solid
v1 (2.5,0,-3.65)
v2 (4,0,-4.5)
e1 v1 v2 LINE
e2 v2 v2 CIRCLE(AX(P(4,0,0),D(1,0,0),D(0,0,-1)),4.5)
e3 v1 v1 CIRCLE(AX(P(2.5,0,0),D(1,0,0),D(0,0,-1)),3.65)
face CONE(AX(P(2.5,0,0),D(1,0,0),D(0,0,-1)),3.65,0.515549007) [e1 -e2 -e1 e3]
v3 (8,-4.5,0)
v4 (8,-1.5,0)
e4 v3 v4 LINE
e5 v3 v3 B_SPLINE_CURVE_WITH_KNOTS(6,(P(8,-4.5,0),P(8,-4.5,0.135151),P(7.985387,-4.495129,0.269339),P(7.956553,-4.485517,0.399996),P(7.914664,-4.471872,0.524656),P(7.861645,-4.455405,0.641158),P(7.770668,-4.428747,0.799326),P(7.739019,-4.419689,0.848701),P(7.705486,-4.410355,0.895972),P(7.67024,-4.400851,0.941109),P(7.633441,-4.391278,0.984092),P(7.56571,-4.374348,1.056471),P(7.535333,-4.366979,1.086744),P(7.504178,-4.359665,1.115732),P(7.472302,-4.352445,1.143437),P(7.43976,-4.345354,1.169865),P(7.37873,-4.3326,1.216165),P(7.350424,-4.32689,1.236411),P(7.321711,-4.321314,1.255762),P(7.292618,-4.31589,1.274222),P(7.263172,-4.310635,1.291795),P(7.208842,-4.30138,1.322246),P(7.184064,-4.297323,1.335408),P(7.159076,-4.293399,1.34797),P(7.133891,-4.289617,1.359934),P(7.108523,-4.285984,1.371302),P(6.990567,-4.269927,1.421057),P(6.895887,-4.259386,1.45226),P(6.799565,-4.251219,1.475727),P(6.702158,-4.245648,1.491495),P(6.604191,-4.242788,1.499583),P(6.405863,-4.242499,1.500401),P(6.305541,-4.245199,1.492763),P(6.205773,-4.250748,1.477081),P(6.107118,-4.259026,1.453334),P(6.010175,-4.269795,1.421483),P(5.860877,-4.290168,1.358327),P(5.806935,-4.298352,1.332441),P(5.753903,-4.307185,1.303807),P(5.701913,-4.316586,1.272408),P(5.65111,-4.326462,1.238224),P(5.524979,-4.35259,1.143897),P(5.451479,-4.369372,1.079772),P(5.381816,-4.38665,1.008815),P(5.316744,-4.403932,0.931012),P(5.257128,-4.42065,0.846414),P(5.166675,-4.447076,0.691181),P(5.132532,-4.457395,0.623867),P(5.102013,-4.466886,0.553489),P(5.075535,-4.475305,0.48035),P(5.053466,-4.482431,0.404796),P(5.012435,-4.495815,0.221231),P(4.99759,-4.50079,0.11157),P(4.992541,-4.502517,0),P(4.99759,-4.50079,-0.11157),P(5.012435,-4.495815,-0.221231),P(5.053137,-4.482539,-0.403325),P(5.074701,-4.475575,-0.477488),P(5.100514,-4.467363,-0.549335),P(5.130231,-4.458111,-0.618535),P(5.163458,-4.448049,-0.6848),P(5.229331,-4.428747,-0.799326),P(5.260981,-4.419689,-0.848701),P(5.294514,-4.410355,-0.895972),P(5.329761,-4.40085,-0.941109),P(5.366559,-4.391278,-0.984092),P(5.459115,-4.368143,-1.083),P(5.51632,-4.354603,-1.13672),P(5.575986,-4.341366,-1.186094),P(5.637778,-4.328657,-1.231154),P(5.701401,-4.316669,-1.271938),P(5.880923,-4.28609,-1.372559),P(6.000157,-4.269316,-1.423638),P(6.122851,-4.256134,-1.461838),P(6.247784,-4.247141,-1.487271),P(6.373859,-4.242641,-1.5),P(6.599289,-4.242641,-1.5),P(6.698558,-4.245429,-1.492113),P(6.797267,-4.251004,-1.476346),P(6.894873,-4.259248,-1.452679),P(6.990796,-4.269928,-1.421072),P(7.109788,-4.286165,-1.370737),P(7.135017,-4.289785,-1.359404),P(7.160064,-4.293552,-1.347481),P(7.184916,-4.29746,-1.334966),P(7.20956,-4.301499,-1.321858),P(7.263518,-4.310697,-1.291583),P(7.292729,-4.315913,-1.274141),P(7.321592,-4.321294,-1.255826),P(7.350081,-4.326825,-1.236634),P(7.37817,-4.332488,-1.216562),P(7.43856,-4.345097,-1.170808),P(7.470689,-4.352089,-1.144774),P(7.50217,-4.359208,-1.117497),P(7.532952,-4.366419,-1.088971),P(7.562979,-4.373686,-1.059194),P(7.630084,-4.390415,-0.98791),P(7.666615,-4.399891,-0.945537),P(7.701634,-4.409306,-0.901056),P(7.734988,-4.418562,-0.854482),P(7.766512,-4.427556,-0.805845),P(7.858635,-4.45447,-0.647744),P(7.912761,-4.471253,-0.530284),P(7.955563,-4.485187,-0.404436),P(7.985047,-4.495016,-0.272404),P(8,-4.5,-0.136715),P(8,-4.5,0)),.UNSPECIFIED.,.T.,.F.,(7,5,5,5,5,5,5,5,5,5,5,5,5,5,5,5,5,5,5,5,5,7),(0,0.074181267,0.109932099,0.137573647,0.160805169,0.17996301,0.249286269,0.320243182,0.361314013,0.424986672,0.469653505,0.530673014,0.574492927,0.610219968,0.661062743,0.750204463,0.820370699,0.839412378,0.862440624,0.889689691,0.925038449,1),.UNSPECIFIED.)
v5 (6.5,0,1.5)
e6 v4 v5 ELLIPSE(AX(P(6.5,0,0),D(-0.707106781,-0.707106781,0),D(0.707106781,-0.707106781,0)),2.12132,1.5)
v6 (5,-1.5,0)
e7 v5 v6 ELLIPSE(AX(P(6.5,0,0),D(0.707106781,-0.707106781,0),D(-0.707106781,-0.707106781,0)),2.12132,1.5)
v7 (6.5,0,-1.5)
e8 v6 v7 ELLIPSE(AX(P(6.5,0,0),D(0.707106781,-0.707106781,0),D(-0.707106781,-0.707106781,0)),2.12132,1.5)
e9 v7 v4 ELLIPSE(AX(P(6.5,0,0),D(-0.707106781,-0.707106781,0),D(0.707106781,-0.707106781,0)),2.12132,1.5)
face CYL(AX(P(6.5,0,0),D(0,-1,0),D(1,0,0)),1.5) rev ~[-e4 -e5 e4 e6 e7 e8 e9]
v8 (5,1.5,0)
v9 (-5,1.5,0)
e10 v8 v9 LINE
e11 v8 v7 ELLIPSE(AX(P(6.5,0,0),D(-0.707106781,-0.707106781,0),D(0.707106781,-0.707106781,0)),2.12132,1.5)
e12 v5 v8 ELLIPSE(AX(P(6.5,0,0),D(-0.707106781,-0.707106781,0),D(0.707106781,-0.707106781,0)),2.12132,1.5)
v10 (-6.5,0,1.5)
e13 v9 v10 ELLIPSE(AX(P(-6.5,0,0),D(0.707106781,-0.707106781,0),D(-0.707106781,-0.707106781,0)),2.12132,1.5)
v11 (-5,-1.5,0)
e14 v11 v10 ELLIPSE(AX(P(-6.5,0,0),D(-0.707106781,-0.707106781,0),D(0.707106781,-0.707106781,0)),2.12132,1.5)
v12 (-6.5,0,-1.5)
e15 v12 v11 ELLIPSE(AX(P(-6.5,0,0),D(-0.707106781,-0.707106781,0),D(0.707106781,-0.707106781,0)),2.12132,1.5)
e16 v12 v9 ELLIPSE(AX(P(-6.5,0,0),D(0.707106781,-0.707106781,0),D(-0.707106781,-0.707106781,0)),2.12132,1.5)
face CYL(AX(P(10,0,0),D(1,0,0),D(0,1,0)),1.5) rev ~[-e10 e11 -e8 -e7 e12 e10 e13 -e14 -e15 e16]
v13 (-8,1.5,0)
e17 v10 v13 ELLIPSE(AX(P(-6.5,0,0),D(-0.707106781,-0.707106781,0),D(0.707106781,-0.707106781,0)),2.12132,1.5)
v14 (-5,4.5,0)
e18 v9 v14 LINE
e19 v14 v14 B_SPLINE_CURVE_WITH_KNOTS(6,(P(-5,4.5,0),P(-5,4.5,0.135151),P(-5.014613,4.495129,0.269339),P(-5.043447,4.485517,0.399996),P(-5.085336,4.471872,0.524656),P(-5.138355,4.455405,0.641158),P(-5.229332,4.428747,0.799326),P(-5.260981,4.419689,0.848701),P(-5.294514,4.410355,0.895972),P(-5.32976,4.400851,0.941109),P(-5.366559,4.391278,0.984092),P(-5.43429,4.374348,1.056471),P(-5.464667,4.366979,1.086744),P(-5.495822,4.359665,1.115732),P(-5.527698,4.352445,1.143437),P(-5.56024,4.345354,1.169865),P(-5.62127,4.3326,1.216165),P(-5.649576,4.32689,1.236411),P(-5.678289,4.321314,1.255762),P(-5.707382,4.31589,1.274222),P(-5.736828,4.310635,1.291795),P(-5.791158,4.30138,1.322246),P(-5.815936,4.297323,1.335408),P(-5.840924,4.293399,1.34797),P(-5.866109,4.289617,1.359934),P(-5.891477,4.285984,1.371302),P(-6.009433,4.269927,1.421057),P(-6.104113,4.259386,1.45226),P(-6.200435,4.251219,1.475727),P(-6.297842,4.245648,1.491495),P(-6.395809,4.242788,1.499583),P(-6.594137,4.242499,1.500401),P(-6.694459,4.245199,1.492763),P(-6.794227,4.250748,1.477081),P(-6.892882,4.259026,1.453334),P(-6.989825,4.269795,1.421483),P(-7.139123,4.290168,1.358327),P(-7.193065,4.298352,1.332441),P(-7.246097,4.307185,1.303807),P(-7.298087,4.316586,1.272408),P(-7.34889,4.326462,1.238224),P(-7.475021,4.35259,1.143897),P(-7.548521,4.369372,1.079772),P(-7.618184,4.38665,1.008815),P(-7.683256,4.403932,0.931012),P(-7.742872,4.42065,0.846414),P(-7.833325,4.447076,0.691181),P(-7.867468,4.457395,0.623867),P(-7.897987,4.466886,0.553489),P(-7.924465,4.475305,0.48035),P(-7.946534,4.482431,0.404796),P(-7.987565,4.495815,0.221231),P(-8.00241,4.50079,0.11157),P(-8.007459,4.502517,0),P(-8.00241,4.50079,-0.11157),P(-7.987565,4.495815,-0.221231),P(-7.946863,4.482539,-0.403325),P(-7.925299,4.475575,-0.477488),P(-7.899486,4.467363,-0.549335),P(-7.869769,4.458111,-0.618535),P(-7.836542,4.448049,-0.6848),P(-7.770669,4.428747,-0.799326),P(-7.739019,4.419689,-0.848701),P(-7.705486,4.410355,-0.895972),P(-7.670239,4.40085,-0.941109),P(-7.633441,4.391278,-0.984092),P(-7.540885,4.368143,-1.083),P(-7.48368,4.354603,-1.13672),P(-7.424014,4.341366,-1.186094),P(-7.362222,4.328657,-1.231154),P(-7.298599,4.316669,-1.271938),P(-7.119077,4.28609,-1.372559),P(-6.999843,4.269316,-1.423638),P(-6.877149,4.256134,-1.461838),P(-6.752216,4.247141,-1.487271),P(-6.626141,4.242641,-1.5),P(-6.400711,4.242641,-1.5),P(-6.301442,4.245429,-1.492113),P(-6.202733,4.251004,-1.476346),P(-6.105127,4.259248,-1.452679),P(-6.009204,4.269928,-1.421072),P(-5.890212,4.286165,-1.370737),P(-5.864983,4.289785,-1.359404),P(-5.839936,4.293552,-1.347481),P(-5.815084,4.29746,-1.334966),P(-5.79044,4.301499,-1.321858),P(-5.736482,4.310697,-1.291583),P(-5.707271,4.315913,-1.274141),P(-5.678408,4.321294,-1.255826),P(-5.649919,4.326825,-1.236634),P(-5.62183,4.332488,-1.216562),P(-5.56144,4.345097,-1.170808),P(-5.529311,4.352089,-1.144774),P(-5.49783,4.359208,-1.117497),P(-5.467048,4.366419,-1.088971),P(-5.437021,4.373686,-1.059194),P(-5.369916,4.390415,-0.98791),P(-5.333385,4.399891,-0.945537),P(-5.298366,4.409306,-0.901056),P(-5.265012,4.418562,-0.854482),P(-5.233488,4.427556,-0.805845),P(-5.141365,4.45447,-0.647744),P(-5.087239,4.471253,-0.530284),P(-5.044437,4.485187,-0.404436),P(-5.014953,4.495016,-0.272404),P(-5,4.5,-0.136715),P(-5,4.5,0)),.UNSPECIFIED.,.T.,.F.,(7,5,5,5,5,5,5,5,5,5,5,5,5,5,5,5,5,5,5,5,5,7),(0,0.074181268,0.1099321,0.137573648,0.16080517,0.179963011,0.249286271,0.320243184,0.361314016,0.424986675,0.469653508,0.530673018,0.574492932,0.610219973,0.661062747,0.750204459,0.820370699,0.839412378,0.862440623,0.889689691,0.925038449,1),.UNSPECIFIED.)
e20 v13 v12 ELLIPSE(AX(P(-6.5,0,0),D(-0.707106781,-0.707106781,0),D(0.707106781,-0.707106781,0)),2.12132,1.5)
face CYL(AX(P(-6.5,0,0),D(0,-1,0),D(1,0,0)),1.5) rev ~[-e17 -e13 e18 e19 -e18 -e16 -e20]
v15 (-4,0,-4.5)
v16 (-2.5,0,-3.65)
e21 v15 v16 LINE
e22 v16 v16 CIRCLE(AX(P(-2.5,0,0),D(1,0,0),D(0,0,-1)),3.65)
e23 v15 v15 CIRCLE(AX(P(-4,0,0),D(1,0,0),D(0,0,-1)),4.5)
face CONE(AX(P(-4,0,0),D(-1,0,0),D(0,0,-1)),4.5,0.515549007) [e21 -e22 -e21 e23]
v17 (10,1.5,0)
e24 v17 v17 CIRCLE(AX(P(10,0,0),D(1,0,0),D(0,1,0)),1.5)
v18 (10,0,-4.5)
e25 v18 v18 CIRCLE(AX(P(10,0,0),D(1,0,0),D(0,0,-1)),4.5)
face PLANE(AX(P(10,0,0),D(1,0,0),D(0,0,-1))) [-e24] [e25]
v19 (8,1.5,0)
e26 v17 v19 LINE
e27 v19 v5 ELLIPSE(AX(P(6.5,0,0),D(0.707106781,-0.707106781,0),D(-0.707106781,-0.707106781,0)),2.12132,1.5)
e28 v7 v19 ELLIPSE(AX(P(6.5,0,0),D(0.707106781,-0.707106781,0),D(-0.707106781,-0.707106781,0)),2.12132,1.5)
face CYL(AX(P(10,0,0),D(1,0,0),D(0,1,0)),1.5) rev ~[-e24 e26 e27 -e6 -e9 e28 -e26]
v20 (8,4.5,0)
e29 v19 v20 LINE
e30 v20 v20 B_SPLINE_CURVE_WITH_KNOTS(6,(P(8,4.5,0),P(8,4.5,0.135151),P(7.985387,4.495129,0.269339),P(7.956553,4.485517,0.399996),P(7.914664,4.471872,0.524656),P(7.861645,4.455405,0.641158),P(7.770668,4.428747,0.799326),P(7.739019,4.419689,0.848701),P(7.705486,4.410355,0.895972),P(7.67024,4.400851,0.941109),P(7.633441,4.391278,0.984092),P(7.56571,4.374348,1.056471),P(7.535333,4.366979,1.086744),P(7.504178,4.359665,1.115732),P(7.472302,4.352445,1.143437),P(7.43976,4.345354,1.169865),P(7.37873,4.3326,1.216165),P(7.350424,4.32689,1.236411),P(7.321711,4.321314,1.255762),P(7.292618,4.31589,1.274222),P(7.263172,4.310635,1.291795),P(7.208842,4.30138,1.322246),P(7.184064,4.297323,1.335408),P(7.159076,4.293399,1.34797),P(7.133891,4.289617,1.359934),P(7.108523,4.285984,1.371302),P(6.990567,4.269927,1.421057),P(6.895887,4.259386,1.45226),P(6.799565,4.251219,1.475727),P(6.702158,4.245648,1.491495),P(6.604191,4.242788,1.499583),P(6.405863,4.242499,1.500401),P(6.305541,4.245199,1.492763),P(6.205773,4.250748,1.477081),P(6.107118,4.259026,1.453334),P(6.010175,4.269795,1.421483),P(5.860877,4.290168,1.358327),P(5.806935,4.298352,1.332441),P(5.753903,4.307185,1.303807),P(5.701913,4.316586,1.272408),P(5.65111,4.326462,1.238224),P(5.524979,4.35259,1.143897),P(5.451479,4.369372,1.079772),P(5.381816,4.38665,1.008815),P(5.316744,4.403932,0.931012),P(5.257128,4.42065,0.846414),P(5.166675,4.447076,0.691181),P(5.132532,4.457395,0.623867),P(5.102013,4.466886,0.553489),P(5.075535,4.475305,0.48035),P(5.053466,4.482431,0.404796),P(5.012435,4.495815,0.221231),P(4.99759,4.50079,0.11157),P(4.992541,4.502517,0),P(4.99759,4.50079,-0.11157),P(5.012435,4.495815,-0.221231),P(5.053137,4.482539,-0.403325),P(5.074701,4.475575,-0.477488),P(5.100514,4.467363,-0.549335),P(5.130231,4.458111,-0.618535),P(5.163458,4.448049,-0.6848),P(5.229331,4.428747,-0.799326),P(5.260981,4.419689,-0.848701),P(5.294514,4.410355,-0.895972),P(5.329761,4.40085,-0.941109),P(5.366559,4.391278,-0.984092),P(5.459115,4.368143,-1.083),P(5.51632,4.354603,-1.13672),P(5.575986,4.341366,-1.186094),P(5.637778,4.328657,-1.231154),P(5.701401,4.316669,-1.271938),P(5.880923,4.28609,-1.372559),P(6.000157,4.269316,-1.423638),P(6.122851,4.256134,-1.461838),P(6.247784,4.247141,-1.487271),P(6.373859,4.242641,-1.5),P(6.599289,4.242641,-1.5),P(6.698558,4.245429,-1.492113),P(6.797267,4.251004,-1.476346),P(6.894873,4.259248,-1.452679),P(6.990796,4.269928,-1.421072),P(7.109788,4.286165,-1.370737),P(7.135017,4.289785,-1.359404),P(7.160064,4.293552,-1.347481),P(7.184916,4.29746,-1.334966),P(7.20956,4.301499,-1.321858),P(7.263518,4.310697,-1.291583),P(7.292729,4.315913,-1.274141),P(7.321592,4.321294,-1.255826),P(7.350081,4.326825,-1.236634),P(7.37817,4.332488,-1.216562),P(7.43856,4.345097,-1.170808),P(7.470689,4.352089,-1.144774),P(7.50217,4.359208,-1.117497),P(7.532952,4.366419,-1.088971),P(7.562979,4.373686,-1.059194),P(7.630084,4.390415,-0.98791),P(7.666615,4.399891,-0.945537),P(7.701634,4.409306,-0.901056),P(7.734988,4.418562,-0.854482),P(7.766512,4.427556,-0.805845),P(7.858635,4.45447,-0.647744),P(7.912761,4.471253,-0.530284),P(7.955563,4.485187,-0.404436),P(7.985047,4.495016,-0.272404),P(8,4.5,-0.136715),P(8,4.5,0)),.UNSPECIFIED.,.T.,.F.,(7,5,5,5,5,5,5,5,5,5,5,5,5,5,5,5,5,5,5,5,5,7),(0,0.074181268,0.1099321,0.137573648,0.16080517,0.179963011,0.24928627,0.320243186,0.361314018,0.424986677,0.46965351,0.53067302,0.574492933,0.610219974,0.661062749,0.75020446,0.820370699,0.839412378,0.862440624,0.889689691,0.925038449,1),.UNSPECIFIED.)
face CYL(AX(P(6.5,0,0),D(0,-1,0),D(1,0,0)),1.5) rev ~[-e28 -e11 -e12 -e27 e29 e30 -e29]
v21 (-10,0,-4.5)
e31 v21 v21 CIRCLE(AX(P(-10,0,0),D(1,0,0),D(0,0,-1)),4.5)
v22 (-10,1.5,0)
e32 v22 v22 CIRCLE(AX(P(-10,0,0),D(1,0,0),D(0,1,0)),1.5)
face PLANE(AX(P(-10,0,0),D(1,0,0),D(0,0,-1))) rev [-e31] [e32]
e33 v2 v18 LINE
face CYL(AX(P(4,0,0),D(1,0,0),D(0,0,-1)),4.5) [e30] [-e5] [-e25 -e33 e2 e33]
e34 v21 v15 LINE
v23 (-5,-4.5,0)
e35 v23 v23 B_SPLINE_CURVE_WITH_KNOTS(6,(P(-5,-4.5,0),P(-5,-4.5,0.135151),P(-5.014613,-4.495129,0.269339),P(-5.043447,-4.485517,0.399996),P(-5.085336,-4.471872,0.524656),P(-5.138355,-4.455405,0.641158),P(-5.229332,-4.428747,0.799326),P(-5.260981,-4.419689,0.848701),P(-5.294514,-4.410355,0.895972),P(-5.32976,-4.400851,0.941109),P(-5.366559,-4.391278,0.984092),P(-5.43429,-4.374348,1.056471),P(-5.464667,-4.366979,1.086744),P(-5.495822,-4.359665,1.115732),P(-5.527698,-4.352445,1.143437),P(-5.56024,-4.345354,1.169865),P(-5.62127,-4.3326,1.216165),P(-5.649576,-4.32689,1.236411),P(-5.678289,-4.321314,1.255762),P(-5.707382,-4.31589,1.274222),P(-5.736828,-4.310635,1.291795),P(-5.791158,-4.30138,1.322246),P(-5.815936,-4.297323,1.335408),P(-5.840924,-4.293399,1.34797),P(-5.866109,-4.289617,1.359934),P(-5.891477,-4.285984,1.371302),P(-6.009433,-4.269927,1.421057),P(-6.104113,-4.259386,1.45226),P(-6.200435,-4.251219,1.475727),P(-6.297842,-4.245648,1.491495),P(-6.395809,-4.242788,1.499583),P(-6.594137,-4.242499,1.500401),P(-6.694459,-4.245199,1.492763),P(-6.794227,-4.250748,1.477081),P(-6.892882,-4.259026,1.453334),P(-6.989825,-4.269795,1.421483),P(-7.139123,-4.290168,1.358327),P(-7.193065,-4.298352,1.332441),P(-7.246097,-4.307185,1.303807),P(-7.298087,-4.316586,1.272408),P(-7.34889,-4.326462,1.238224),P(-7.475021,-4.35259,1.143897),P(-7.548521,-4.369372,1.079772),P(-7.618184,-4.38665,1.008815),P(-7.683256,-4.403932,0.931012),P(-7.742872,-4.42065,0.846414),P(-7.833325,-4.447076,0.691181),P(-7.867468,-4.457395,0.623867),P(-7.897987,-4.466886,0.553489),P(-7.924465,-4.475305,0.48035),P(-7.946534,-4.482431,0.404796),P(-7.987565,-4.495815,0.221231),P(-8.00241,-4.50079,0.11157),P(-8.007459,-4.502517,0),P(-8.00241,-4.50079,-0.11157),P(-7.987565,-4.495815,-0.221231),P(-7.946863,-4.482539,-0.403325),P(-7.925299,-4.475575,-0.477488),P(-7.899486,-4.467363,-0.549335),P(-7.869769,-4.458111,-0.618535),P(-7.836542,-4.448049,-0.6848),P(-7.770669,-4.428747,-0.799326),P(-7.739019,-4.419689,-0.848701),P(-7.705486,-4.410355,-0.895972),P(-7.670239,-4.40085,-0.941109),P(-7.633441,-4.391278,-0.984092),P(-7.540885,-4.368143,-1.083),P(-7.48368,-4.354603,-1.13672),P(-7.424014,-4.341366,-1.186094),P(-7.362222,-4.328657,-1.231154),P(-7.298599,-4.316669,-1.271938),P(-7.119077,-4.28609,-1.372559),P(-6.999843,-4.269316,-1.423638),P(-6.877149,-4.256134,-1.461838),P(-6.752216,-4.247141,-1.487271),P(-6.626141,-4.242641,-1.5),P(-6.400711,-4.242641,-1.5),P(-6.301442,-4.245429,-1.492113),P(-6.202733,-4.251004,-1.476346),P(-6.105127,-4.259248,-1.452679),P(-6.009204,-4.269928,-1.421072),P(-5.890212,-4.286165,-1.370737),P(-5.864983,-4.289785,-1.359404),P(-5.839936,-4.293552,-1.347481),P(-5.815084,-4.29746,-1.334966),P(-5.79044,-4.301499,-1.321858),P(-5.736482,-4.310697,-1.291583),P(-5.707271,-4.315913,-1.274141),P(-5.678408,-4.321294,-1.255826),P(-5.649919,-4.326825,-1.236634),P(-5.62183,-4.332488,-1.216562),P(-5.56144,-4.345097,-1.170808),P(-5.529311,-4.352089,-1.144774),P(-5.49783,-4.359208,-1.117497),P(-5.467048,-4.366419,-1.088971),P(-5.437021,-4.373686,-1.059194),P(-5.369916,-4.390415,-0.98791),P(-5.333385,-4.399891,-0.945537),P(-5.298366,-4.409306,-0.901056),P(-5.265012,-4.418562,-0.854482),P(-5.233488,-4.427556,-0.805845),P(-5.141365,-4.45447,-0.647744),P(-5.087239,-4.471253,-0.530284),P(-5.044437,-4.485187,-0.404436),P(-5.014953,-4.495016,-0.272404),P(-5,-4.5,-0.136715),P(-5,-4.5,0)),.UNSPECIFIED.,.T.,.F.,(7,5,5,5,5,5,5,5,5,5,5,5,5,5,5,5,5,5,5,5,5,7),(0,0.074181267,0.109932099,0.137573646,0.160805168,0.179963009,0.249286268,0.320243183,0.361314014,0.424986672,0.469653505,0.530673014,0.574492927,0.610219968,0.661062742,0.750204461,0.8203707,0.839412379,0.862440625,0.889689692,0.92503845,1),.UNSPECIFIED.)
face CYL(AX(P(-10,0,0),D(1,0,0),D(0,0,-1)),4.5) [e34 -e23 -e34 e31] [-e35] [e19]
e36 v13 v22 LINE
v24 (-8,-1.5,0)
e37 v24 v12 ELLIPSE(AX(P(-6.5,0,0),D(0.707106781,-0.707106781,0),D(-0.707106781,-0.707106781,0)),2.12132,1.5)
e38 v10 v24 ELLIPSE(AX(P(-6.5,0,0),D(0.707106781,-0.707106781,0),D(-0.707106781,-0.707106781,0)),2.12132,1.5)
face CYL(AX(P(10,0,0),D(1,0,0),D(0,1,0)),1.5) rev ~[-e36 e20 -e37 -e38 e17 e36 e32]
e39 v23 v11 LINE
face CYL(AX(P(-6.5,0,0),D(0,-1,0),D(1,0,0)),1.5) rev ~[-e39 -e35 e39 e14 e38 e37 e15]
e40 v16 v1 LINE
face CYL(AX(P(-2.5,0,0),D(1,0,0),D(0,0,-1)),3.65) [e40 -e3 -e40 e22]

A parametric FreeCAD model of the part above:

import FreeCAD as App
import Part
import Sketcher

V = App.Vector

doc = App.newDocument("Part")
body = doc.addObject("PartDesign::Body", "Body")

# Sketch on XZ plane
sketch1 = doc.addObject("Sketcher::SketchObject", "Sketch")
body.addObject(sketch1)
sketch1.AttachmentSupport = (doc.XZ_Plane, [""])
sketch1.MapMode = "FlatFace"
sketch1.addGeometry([
    Part.LineSegment(V(10, 0, 0), V(-10, 0, 0)),  # 0
    Part.LineSegment(V(-10, 0, 0), V(-10, -4.5, 0)),  # 1
    Part.LineSegment(V(-10, -4.5, 0), V(-4, -4.5, 0)),  # 2
    Part.LineSegment(V(-4, -4.5, 0), V(-2.5, -3.65, 0)),  # 3
    Part.LineSegment(V(-2.5, -3.65, 0), V(2.5, -3.65, 0)),  # 4
    Part.LineSegment(V(2.5, -3.65, 0), V(4, -4.5, 0)),  # 5
    Part.LineSegment(V(4, -4.5, 0), V(10, -4.5, 0)),  # 6
    Part.LineSegment(V(10, -4.5, 0), V(10, 0, 0)),  # 7
], False)
sketch1.addConstraint([
    Sketcher.Constraint("Coincident", 0, 2, 1, 1),
    Sketcher.Constraint("Coincident", 1, 2, 2, 1),
    Sketcher.Constraint("Coincident", 2, 2, 3, 1),
    Sketcher.Constraint("Coincident", 3, 2, 4, 1),
    Sketcher.Constraint("Coincident", 4, 2, 5, 1),
    Sketcher.Constraint("Coincident", 5, 2, 6, 1),
    Sketcher.Constraint("Coincident", 6, 2, 7, 1),
    Sketcher.Constraint("Coincident", 7, 2, 0, 1),
    Sketcher.Constraint("Horizontal", 0),
    Sketcher.Constraint("Vertical", 1),
    Sketcher.Constraint("Horizontal", 2),
    Sketcher.Constraint("Horizontal", 4),
    Sketcher.Constraint("Horizontal", 6),
    Sketcher.Constraint("Vertical", 7),
    Sketcher.Constraint("Symmetric", 0, 2, 7, 2, -1, 1),
    Sketcher.Constraint("Symmetric", 2, 2, 5, 2, -2),
    Sketcher.Constraint("Equal", 3, 5),
    Sketcher.Constraint("DistanceX", 0, 2, 0, 1, 20.0),
    Sketcher.Constraint("DistanceX", 2, 1, 2, 2, 6.0),
    Sketcher.Constraint("DistanceX", 4, 1, 4, 2, 5.0),
    Sketcher.Constraint("DistanceY", 1, 2, 1, 1, 4.5),
    Sketcher.Constraint("DistanceY", 3, 2, -1, 1, 3.65),
])
revolution = doc.addObject("PartDesign::Revolution", "Revolution")
body.addObject(revolution)
revolution.Profile = sketch1
revolution.ReferenceAxis = (sketch1, ["H_Axis"])
revolution.Angle = 360

# Sketch on XZ plane
sketch2 = doc.addObject("Sketcher::SketchObject", "Sketch001")
body.addObject(sketch2)
sketch2.AttachmentSupport = (doc.XZ_Plane, [""])
sketch2.MapMode = "FlatFace"
sketch2.addGeometry([
    Part.Circle(V(-6.5, 0, 0), V(0, 0, 1), 1.5),
    Part.Circle(V(6.5, 0, 0), V(0, 0, 1), 1.5),
], False)
sketch2.addConstraint([
    Sketcher.Constraint("Equal", 0, 1),
    Sketcher.Constraint("Symmetric", 0, 3, 1, 3, -1, 1),
    Sketcher.Constraint("PointOnObject", 0, 3, -1),
    Sketcher.Constraint("Diameter", 0, 3.0),
    Sketcher.Constraint("DistanceX", 0, 3, 1, 3, 13.0),
])
pocket1 = doc.addObject("PartDesign::Pocket", "Pocket")
body.addObject(pocket1)
pocket1.Profile = sketch2
pocket1.Type = "ThroughAll"
pocket1.Midplane = True

# Sketch on YZ plane
sketch3 = doc.addObject("Sketcher::SketchObject", "Sketch002")
body.addObject(sketch3)
sketch3.AttachmentSupport = (doc.YZ_Plane, [""])
sketch3.MapMode = "FlatFace"
sketch3.AttachmentOffset = App.Placement(V(0, 0, 10), App.Rotation())
sketch3.addGeometry(Part.Circle(V(0, 0, 0), V(0, 0, 1), 1.5), False)
sketch3.addConstraint([
    Sketcher.Constraint("Coincident", 0, 3, -1, 1),
    Sketcher.Constraint("Diameter", 0, 3.0),
])
pocket2 = doc.addObject("PartDesign::Pocket", "Pocket001")
body.addObject(pocket2)
pocket2.Profile = sketch3
pocket2.Type = "ThroughAll"
pocket2.Midplane = True

doc.recompute()
